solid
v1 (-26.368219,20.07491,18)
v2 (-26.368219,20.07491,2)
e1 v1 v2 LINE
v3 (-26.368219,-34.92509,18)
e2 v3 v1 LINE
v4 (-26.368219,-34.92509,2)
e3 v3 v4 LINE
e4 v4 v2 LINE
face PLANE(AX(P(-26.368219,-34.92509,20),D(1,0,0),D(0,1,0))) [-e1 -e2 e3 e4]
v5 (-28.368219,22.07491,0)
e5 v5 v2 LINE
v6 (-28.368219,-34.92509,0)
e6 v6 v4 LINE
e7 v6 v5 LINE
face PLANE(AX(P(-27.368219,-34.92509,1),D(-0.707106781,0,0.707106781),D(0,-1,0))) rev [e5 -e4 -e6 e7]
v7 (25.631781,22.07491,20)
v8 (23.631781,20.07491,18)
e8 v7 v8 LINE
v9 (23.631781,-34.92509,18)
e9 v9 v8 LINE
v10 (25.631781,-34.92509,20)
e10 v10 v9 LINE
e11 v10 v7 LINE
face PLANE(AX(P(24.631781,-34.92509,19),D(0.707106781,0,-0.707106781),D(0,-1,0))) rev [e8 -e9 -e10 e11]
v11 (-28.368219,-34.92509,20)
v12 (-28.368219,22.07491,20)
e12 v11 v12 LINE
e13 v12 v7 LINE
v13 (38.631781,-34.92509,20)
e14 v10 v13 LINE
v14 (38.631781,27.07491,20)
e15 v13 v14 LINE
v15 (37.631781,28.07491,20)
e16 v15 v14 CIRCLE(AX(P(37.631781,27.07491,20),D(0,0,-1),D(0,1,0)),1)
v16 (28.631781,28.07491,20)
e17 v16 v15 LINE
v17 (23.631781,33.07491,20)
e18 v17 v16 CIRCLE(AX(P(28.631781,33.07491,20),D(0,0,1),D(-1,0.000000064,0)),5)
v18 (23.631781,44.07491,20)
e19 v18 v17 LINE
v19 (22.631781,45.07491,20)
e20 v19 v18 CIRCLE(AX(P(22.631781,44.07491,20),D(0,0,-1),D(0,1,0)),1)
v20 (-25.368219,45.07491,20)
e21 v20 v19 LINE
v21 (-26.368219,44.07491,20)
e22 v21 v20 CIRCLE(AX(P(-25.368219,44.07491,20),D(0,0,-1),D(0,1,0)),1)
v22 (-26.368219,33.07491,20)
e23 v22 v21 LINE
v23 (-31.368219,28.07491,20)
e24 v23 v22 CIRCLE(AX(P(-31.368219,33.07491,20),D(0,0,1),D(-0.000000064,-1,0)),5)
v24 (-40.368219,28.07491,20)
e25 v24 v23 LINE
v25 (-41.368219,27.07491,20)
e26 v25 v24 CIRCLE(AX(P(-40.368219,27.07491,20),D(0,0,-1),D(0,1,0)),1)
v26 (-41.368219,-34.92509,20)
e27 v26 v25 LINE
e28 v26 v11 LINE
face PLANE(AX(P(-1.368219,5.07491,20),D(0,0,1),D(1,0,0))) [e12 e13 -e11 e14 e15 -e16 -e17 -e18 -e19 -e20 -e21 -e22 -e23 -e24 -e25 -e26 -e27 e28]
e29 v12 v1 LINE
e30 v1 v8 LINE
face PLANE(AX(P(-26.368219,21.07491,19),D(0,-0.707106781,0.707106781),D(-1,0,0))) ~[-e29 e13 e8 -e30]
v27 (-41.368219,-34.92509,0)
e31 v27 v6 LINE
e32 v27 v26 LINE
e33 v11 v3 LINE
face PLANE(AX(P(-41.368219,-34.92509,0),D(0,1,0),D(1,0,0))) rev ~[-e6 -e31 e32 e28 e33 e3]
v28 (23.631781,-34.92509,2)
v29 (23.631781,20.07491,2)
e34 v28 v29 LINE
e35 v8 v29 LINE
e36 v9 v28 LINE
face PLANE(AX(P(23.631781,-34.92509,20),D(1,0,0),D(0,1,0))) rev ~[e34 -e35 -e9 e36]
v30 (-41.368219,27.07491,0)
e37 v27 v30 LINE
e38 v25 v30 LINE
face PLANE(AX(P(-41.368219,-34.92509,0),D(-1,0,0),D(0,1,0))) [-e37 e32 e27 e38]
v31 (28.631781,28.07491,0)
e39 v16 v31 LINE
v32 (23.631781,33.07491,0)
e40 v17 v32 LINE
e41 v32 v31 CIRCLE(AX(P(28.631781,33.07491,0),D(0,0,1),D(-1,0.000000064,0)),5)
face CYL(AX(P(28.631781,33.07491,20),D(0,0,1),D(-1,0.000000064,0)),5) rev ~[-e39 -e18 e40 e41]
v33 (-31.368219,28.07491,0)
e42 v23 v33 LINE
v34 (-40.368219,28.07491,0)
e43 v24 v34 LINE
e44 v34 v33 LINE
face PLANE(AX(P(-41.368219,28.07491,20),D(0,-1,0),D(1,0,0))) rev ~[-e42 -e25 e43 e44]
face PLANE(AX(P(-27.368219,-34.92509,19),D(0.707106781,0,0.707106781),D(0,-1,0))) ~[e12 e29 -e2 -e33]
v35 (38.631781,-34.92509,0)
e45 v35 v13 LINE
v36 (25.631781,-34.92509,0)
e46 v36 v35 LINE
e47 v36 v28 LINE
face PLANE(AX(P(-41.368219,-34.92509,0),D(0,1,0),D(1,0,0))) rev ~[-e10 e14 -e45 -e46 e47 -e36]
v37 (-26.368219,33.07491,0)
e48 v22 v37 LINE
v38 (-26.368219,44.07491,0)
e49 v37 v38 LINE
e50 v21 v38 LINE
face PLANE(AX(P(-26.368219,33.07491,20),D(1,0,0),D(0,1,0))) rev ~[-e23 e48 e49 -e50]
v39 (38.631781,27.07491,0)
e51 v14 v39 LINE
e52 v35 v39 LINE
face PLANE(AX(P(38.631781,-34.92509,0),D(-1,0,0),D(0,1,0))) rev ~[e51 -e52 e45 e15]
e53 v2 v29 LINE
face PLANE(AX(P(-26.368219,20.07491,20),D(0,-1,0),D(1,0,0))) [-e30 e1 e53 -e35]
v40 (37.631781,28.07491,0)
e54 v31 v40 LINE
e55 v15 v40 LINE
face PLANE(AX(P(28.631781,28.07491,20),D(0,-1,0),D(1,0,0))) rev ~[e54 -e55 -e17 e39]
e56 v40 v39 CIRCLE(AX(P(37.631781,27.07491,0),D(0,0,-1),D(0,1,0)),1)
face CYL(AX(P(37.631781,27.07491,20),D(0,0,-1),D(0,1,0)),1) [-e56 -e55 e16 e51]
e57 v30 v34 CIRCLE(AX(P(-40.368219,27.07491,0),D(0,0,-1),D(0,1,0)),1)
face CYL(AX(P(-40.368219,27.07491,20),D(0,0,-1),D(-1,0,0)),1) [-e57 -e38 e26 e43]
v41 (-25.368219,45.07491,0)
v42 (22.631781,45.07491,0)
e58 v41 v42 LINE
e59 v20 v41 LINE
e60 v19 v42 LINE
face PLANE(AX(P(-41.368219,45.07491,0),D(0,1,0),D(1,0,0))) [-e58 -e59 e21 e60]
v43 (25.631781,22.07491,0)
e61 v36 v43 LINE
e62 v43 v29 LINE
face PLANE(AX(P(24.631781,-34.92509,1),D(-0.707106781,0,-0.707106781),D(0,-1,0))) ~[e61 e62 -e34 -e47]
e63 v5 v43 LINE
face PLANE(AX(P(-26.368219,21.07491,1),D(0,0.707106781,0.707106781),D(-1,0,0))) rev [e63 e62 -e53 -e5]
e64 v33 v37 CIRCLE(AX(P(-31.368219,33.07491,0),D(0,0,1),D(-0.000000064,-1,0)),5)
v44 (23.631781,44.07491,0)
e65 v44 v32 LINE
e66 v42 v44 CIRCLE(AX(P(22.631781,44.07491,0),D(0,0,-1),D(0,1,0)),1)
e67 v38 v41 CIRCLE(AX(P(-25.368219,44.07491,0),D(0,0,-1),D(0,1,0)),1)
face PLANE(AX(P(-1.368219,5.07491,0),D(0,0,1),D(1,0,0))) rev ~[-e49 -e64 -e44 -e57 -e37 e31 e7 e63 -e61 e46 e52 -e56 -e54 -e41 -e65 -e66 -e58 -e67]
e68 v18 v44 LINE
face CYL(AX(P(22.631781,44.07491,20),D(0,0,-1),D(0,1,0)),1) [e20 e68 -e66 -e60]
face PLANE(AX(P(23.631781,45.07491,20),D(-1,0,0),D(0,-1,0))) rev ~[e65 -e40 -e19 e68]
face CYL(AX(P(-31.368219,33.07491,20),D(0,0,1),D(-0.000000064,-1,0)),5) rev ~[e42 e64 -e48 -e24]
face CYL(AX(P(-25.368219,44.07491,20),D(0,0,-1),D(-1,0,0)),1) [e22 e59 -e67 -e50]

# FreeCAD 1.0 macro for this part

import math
import FreeCAD as App
import Part
import Sketcher

V = App.Vector
Q = App.Units.Quantity


def edges_at(feature, points):
    """Names of the edges that pass closest to the given points."""
    edges = feature.Shape.Edges
    near = lambda p: min(range(len(edges)), key=lambda i: edges[i].distToShape(Part.Vertex(*p))[0])
    return sorted({f"Edge{near(p) + 1}" for p in points})

doc = App.newDocument("Part")
body = doc.addObject("PartDesign::Body", "Body")

# Sketch on XY plane
sketch1 = body.newObject("Sketcher::SketchObject", "Sketch")
sketch1.AttachmentSupport = (doc.getObject("XY_Plane"), [""])
sketch1.MapMode = "FlatFace"
sketch1.addGeometry(Part.LineSegment(V(-41, 45, 0), V(-41, -35, 0)), False)
sketch1.addGeometry(Part.LineSegment(V(-41, -35, 0), V(39, -35, 0)), False)
sketch1.addGeometry(Part.LineSegment(V(39, -35, 0), V(39, 45, 0)), False)
sketch1.addGeometry(Part.LineSegment(V(39, 45, 0), V(-41, 45, 0)), False)
sketch1.addConstraint(Sketcher.Constraint("Coincident", 0, 2, 1, 1))
sketch1.addConstraint(Sketcher.Constraint("Coincident", 1, 2, 2, 1))
sketch1.addConstraint(Sketcher.Constraint("Coincident", 2, 2, 3, 1))
sketch1.addConstraint(Sketcher.Constraint("Coincident", 3, 2, 0, 1))
sketch1.addConstraint(Sketcher.Constraint("Vertical", 0))
sketch1.addConstraint(Sketcher.Constraint("Horizontal", 1))
sketch1.addConstraint(Sketcher.Constraint("Vertical", 2))
sketch1.addConstraint(Sketcher.Constraint("Horizontal", 3))
sketch1.addConstraint(Sketcher.Constraint("Equal", 3, 0))
sketch1.addConstraint(Sketcher.Constraint("DistanceX", 1, 1, 1, 2, Q("80 mm")))
sketch1.addConstraint(Sketcher.Constraint("DistanceX", 0, 2, -1, 1, Q("41.368219 mm")))
sketch1.addConstraint(Sketcher.Constraint("DistanceY", 0, 2, -1, 1, Q("34.92509 mm")))
pad1 = body.newObject("PartDesign::Pad", "Pad")
pad1.Profile = sketch1
pad1.Length = 20

# Sketch on XY plane
sketch2 = body.newObject("Sketcher::SketchObject", "Sketch001")
sketch2.AttachmentSupport = (doc.getObject("XY_Plane"), [""])
sketch2.MapMode = "FlatFace"
sketch2.AttachmentOffset = App.Placement(V(0, 0, 20), App.Rotation())
sketch2.addGeometry(Part.LineSegment(V(-26, 20, 0), V(-26, -35, 0)), False)
sketch2.addGeometry(Part.LineSegment(V(-26, -35, 0), V(24, -35, 0)), False)
sketch2.addGeometry(Part.LineSegment(V(24, -35, 0), V(24, 20, 0)), False)
sketch2.addGeometry(Part.LineSegment(V(24, 20, 0), V(-26, 20, 0)), False)
sketch2.addConstraint(Sketcher.Constraint("Coincident", 0, 2, 1, 1))
sketch2.addConstraint(Sketcher.Constraint("Coincident", 1, 2, 2, 1))
sketch2.addConstraint(Sketcher.Constraint("Coincident", 2, 2, 3, 1))
sketch2.addConstraint(Sketcher.Constraint("Coincident", 3, 2, 0, 1))
sketch2.addConstraint(Sketcher.Constraint("Vertical", 0))
sketch2.addConstraint(Sketcher.Constraint("Horizontal", 1))
sketch2.addConstraint(Sketcher.Constraint("Vertical", 2))
sketch2.addConstraint(Sketcher.Constraint("Horizontal", 3))
sketch2.addConstraint(Sketcher.Constraint("DistanceX", 1, 1, 1, 2, Q("50 mm")))
sketch2.addConstraint(Sketcher.Constraint("DistanceY", 0, 2, 0, 1, Q("55 mm")))
sketch2.addConstraint(Sketcher.Constraint("DistanceX", 0, 2, -1, 1, Q("26.368219 mm")))
sketch2.addConstraint(Sketcher.Constraint("DistanceY", 0, 2, -1, 1, Q("34.92509 mm")))
pocket1 = body.newObject("PartDesign::Pocket", "Pocket")
pocket1.Profile = sketch2
pocket1.Length = 20

# Sketch on XY plane
sketch3 = body.newObject("Sketcher::SketchObject", "Sketch002")
sketch3.AttachmentSupport = (doc.getObject("XY_Plane"), [""])
sketch3.MapMode = "FlatFace"
sketch3.AttachmentOffset = App.Placement(V(0, 0, 20), App.Rotation())
sketch3.addGeometry(Part.LineSegment(V(-41.4, 45.1, 0), V(-41.4, 28.1, 0)), False)
sketch3.addGeometry(Part.LineSegment(V(-41.4, 28.1, 0), V(-31.4, 28.1, 0)), False)
sketch3.addGeometry(Part.ArcOfCircle(Part.Circle(V(-31.4, 33.1, 0), V(0, 0, 1), 5), math.radians(-90), math.radians(0)), False)
sketch3.addGeometry(Part.LineSegment(V(-26.4, 33.1, 0), V(-26.4, 45.1, 0)), False)
sketch3.addGeometry(Part.LineSegment(V(-26.4, 45.1, 0), V(-41.4, 45.1, 0)), False)
sketch3.addGeometry(Part.LineSegment(V(38.6, 45.1, 0), V(23.6, 45.1, 0)), False)
sketch3.addGeometry(Part.LineSegment(V(23.6, 45.1, 0), V(23.6, 33.1, 0)), False)
sketch3.addGeometry(Part.ArcOfCircle(Part.Circle(V(28.6, 33.1, 0), V(0, 0, 1), 5), math.radians(180), math.radians(270)), False)
sketch3.addGeometry(Part.LineSegment(V(28.6, 28.1, 0), V(38.6, 28.1, 0)), False)
sketch3.addGeometry(Part.LineSegment(V(38.6, 28.1, 0), V(38.6, 45.1, 0)), False)
sketch3.addConstraint(Sketcher.Constraint("Coincident", 0, 2, 1, 1))
sketch3.addConstraint(Sketcher.Constraint("Tangent", 1, 2, 2, 1))
sketch3.addConstraint(Sketcher.Constraint("Tangent", 2, 2, 3, 1))
sketch3.addConstraint(Sketcher.Constraint("Coincident", 3, 2, 4, 1))
sketch3.addConstraint(Sketcher.Constraint("Coincident", 4, 2, 0, 1))
sketch3.addConstraint(Sketcher.Constraint("Coincident", 5, 2, 6, 1))
sketch3.addConstraint(Sketcher.Constraint("Tangent", 6, 2, 7, 1))
sketch3.addConstraint(Sketcher.Constraint("Tangent", 7, 2, 8, 1))
sketch3.addConstraint(Sketcher.Constraint("Coincident", 8, 2, 9, 1))
sketch3.addConstraint(Sketcher.Constraint("Coincident", 9, 2, 5, 1))
sketch3.addConstraint(Sketcher.Constraint("Vertical", 0))
sketch3.addConstraint(Sketcher.Constraint("Horizontal", 1))
sketch3.addConstraint(Sketcher.Constraint("Vertical", 3))
sketch3.addConstraint(Sketcher.Constraint("Horizontal", 4))
sketch3.addConstraint(Sketcher.Constraint("Horizontal", 5))
sketch3.addConstraint(Sketcher.Constraint("Vertical", 6))
sketch3.addConstraint(Sketcher.Constraint("Horizontal", 8))
sketch3.addConstraint(Sketcher.Constraint("Vertical", 9))
sketch3.addConstraint(Sketcher.Constraint("Equal", 2, 7))
sketch3.addConstraint(Sketcher.Constraint("Horizontal", 2, 3, 7, 3))
sketch3.addConstraint(Sketcher.Constraint("Horizontal", 4, 2, 5, 2))
sketch3.addConstraint(Sketcher.Constraint("Equal", 4, 5))
sketch3.addConstraint(Sketcher.Constraint("Radius", 2, Q("5 mm")))
sketch3.addConstraint(Sketcher.Constraint("DistanceX", 1, 1, 1, 2, Q("10 mm")))
sketch3.addConstraint(Sketcher.Constraint("DistanceY", 0, 2, 0, 1, Q("17 mm")))
sketch3.addConstraint(Sketcher.Constraint("DistanceX", 2, 3, 7, 3, Q("59.999999 mm")))
sketch3.addConstraint(Sketcher.Constraint("DistanceX", 2, 3, -1, 1, Q("31.368219 mm")))
sketch3.addConstraint(Sketcher.Constraint("DistanceY", -1, 1, 2, 3, Q("33.07491 mm")))
pocket2 = body.newObject("PartDesign::Pocket", "Pocket001")
pocket2.Profile = sketch3
pocket2.Length = 20
doc.recompute()

fillet = body.newObject("PartDesign::Fillet", "Fillet")
fillet.Base = (pocket2, edges_at(pocket2, [
    (-26.368, 45.075, 10),
    (-41.368, 28.075, 10),
    (38.632, 28.075, 10),
    (23.632, 45.075, 10),
]))
fillet.Radius = 1
doc.recompute()

chamfer = body.newObject("PartDesign::Chamfer", "Chamfer")
chamfer.Base = (fillet, edges_at(fillet, [
    (-26.368, -7.425, 20),
    (-1.368, 20.075, 20),
    (23.632, -7.425, 20),
    (-26.368, -7.425, 0),
    (-1.368, 20.075, 0),
    (23.632, -7.425, 0),
]))
chamfer.Size = 2

doc.recompute()
